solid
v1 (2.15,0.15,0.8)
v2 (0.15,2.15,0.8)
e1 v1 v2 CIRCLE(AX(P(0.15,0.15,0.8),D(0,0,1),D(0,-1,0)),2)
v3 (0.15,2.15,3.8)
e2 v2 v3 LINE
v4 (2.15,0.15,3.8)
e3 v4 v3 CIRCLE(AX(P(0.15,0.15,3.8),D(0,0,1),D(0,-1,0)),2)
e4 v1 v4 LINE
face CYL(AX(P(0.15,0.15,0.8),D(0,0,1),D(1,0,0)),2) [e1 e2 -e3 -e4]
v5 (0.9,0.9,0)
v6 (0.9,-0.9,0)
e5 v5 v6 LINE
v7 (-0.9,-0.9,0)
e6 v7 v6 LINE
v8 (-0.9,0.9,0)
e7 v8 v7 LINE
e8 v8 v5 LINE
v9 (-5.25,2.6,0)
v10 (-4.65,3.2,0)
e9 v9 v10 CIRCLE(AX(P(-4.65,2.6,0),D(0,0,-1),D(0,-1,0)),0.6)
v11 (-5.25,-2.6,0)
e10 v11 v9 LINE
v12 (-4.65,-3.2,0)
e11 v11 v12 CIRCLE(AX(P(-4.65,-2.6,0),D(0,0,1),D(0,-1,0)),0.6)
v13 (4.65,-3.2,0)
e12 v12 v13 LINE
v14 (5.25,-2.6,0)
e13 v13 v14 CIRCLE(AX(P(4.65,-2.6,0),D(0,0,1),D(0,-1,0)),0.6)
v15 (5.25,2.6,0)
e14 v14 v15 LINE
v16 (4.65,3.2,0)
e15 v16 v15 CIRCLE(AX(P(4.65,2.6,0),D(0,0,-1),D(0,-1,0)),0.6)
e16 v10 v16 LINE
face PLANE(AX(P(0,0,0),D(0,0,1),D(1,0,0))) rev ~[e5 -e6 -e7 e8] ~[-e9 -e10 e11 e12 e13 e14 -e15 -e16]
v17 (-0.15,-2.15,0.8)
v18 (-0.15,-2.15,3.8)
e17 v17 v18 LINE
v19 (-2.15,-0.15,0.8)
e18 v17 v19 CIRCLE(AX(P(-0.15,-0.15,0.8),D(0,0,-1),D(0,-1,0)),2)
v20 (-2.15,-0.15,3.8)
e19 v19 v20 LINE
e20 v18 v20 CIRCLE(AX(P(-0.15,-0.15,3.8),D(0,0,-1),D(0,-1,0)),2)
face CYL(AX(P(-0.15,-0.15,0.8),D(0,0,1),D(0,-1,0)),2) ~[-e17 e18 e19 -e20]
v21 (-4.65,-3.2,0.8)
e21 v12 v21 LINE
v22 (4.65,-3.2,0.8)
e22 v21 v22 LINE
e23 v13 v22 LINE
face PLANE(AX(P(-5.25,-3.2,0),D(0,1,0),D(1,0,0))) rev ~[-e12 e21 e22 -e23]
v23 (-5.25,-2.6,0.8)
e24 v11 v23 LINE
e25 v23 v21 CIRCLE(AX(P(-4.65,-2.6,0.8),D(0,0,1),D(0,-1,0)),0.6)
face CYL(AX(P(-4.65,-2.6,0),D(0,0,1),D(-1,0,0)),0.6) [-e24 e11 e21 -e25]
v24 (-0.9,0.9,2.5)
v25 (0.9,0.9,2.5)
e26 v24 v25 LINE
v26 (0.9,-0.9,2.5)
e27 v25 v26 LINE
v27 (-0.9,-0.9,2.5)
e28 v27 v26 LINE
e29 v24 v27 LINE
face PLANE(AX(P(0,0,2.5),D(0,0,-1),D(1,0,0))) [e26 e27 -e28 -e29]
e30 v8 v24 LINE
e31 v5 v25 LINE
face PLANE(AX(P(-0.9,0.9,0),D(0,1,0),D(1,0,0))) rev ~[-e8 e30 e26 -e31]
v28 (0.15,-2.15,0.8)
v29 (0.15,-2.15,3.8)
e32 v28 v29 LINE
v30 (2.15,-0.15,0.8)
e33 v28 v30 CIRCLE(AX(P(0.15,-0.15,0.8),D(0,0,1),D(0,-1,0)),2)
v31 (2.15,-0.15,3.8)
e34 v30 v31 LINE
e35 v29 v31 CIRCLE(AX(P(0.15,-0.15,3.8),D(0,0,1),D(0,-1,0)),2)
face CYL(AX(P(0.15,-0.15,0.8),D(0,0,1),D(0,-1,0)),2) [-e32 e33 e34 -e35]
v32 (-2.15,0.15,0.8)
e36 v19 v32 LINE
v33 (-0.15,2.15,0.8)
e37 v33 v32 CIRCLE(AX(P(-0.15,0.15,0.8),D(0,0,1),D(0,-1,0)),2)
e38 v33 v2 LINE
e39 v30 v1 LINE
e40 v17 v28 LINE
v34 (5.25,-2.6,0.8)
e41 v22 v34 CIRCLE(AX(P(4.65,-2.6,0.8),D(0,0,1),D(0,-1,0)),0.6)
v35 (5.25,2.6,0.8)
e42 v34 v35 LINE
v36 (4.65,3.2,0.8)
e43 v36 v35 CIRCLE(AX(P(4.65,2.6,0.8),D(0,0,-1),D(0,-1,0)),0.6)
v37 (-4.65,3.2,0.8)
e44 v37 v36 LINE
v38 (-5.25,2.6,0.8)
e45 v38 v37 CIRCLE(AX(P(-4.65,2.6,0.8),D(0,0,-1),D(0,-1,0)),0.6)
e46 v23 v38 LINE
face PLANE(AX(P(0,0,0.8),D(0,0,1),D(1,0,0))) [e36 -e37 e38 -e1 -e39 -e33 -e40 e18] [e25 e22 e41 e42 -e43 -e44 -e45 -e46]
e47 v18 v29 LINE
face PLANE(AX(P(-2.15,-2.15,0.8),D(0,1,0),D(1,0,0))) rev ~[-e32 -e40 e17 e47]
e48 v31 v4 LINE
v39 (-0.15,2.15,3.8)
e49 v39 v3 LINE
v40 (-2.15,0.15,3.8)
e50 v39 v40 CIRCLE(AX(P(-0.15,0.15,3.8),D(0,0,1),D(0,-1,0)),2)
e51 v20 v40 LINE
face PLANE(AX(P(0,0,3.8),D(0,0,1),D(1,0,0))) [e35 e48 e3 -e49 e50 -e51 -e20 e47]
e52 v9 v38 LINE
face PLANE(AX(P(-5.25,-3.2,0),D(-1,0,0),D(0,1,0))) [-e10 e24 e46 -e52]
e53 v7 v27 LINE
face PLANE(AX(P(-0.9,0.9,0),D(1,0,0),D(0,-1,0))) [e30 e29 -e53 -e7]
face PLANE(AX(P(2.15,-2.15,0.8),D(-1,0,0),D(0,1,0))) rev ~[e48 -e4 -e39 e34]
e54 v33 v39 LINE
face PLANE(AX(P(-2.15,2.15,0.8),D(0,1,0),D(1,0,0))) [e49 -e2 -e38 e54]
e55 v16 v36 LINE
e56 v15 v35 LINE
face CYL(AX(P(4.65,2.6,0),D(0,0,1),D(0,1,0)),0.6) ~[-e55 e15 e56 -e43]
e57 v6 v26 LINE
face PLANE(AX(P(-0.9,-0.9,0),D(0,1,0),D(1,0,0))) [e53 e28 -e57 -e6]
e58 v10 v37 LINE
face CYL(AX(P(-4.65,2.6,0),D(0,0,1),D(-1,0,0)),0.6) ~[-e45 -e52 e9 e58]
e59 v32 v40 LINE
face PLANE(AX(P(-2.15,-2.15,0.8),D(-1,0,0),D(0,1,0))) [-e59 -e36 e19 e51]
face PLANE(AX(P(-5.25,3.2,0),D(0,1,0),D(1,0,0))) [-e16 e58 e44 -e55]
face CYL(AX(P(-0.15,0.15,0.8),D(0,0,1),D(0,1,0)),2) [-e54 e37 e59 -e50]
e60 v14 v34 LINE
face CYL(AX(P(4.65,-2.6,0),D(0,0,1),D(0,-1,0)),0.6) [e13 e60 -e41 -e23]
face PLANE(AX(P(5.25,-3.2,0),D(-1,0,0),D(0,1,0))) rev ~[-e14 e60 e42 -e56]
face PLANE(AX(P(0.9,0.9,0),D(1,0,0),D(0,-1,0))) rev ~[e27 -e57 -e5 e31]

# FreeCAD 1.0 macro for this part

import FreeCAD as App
import Part
import Sketcher
from FreeCAD import Vector


def edges_at(feature, points):
    """Names of the edges that pass closest to the given points."""
    edges = feature.Shape.Edges
    near = lambda p: min(range(len(edges)), key=lambda i: edges[i].distToShape(Part.Vertex(*p))[0])
    return sorted({f"Edge{near(p) + 1}" for p in points})

doc = App.newDocument("Part")
body = doc.addObject("PartDesign::Body", "Body")

# Sketch on XY plane
sketch1 = body.newObject("Sketcher::SketchObject", "Sketch")
sketch1.AttachmentSupport = (doc.getObject("XY_Plane"), [""])
sketch1.MapMode = "FlatFace"
sketch1.addGeometry([
    Part.LineSegment(Vector(-5, 3, 0), Vector(-5, -3, 0)),
    Part.LineSegment(Vector(-5, -3, 0), Vector(5, -3, 0)),
    Part.LineSegment(Vector(5, -3, 0), Vector(5, 3, 0)),
    Part.LineSegment(Vector(5, 3, 0), Vector(-5, 3, 0)),
], False)
sketch1.addConstraint([
    Sketcher.Constraint("Coincident", 0, 2, 1, 1),
    Sketcher.Constraint("Coincident", 1, 2, 2, 1),
    Sketcher.Constraint("Coincident", 2, 2, 3, 1),
    Sketcher.Constraint("Coincident", 3, 2, 0, 1),
    Sketcher.Constraint("Vertical", 0),
    Sketcher.Constraint("Horizontal", 1),
    Sketcher.Constraint("Vertical", 2),
    Sketcher.Constraint("Horizontal", 3),
    Sketcher.Constraint("Symmetric", 0, 2, 2, 2, -1, 1),
    Sketcher.Constraint("DistanceX", 1, 1, 1, 2, 10.5),
    Sketcher.Constraint("DistanceY", 0, 2, 0, 1, 6.4),
])
pad1 = body.newObject("PartDesign::Pad", "Pad")
pad1.Profile = sketch1
pad1.Length = 0.8

# Sketch on XY plane
sketch2 = body.newObject("Sketcher::SketchObject", "Sketch001")
sketch2.AttachmentSupport = (doc.getObject("XY_Plane"), [""])
sketch2.MapMode = "FlatFace"
sketch2.AttachmentOffset = App.Placement(Vector(0, 0, 0.8), App.Rotation())
sketch2.addGeometry([
    Part.LineSegment(Vector(-2.1, 2.1, 0), Vector(-2.1, -2.1, 0)),
    Part.LineSegment(Vector(-2.1, -2.1, 0), Vector(2.1, -2.1, 0)),
    Part.LineSegment(Vector(2.1, -2.1, 0), Vector(2.1, 2.1, 0)),
    Part.LineSegment(Vector(2.1, 2.1, 0), Vector(-2.1, 2.1, 0)),
], False)
sketch2.addConstraint([
    Sketcher.Constraint("Coincident", 0, 2, 1, 1),
    Sketcher.Constraint("Coincident", 1, 2, 2, 1),
    Sketcher.Constraint("Coincident", 2, 2, 3, 1),
    Sketcher.Constraint("Coincident", 3, 2, 0, 1),
    Sketcher.Constraint("Vertical", 0),
    Sketcher.Constraint("Horizontal", 1),
    Sketcher.Constraint("Vertical", 2),
    Sketcher.Constraint("Horizontal", 3),
    Sketcher.Constraint("Symmetric", 0, 2, 2, 2, -1, 1),
    Sketcher.Constraint("Equal", 3, 0),
    Sketcher.Constraint("DistanceX", 1, 1, 1, 2, 4.3),
])
pad2 = body.newObject("PartDesign::Pad", "Pad001")
pad2.Profile = sketch2
pad2.Length = 3
doc.recompute()

fillet = body.newObject("PartDesign::Fillet", "Fillet")
fillet.Base = (pad2, edges_at(pad2, [
    (-2.15, -2.15, 2.3),
    (-2.15, 2.15, 2.3),
    (2.15, -2.15, 2.3),
    (2.15, 2.15, 2.3),
]))
fillet.Radius = 2
doc.recompute()

fillet2 = body.newObject("PartDesign::Fillet", "Fillet001")
fillet2.Base = (fillet, edges_at(fillet, [
    (-5.25, -3.2, 0.4),
    (-5.25, 3.2, 0.4),
    (5.25, -3.2, 0.4),
    (5.25, 3.2, 0.4),
]))
fillet2.Radius = 0.6

# Sketch on XY plane
sketch3 = body.newObject("Sketcher::SketchObject", "Sketch002")
sketch3.AttachmentSupport = (doc.getObject("XY_Plane"), [""])
sketch3.MapMode = "FlatFace"
sketch3.addGeometry([
    Part.LineSegment(Vector(-0.9, -0.9, 0), Vector(-0.9, 0.9, 0)),
    Part.LineSegment(Vector(-0.9, 0.9, 0), Vector(0.9, 0.9, 0)),
    Part.LineSegment(Vector(0.9, 0.9, 0), Vector(0.9, -0.9, 0)),
    Part.LineSegment(Vector(0.9, -0.9, 0), Vector(-0.9, -0.9, 0)),
], False)
sketch3.addConstraint([
    Sketcher.Constraint("Coincident", 0, 2, 1, 1),
    Sketcher.Constraint("Coincident", 1, 2, 2, 1),
    Sketcher.Constraint("Coincident", 2, 2, 3, 1),
    Sketcher.Constraint("Coincident", 3, 2, 0, 1),
    Sketcher.Constraint("Vertical", 0),
    Sketcher.Constraint("Horizontal", 1),
    Sketcher.Constraint("Vertical", 2),
    Sketcher.Constraint("Horizontal", 3),
    Sketcher.Constraint("Symmetric", 0, 2, 2, 2, -1, 1),
    Sketcher.Constraint("Equal", 3, 0),
    Sketcher.Constraint("DistanceX", 1, 1, 1, 2, 1.8),
])
pocket1 = body.newObject("PartDesign::Pocket", "Pocket")
pocket1.Profile = sketch3
pocket1.Length = 2.5
pocket1.Reversed = True

doc.recompute()
